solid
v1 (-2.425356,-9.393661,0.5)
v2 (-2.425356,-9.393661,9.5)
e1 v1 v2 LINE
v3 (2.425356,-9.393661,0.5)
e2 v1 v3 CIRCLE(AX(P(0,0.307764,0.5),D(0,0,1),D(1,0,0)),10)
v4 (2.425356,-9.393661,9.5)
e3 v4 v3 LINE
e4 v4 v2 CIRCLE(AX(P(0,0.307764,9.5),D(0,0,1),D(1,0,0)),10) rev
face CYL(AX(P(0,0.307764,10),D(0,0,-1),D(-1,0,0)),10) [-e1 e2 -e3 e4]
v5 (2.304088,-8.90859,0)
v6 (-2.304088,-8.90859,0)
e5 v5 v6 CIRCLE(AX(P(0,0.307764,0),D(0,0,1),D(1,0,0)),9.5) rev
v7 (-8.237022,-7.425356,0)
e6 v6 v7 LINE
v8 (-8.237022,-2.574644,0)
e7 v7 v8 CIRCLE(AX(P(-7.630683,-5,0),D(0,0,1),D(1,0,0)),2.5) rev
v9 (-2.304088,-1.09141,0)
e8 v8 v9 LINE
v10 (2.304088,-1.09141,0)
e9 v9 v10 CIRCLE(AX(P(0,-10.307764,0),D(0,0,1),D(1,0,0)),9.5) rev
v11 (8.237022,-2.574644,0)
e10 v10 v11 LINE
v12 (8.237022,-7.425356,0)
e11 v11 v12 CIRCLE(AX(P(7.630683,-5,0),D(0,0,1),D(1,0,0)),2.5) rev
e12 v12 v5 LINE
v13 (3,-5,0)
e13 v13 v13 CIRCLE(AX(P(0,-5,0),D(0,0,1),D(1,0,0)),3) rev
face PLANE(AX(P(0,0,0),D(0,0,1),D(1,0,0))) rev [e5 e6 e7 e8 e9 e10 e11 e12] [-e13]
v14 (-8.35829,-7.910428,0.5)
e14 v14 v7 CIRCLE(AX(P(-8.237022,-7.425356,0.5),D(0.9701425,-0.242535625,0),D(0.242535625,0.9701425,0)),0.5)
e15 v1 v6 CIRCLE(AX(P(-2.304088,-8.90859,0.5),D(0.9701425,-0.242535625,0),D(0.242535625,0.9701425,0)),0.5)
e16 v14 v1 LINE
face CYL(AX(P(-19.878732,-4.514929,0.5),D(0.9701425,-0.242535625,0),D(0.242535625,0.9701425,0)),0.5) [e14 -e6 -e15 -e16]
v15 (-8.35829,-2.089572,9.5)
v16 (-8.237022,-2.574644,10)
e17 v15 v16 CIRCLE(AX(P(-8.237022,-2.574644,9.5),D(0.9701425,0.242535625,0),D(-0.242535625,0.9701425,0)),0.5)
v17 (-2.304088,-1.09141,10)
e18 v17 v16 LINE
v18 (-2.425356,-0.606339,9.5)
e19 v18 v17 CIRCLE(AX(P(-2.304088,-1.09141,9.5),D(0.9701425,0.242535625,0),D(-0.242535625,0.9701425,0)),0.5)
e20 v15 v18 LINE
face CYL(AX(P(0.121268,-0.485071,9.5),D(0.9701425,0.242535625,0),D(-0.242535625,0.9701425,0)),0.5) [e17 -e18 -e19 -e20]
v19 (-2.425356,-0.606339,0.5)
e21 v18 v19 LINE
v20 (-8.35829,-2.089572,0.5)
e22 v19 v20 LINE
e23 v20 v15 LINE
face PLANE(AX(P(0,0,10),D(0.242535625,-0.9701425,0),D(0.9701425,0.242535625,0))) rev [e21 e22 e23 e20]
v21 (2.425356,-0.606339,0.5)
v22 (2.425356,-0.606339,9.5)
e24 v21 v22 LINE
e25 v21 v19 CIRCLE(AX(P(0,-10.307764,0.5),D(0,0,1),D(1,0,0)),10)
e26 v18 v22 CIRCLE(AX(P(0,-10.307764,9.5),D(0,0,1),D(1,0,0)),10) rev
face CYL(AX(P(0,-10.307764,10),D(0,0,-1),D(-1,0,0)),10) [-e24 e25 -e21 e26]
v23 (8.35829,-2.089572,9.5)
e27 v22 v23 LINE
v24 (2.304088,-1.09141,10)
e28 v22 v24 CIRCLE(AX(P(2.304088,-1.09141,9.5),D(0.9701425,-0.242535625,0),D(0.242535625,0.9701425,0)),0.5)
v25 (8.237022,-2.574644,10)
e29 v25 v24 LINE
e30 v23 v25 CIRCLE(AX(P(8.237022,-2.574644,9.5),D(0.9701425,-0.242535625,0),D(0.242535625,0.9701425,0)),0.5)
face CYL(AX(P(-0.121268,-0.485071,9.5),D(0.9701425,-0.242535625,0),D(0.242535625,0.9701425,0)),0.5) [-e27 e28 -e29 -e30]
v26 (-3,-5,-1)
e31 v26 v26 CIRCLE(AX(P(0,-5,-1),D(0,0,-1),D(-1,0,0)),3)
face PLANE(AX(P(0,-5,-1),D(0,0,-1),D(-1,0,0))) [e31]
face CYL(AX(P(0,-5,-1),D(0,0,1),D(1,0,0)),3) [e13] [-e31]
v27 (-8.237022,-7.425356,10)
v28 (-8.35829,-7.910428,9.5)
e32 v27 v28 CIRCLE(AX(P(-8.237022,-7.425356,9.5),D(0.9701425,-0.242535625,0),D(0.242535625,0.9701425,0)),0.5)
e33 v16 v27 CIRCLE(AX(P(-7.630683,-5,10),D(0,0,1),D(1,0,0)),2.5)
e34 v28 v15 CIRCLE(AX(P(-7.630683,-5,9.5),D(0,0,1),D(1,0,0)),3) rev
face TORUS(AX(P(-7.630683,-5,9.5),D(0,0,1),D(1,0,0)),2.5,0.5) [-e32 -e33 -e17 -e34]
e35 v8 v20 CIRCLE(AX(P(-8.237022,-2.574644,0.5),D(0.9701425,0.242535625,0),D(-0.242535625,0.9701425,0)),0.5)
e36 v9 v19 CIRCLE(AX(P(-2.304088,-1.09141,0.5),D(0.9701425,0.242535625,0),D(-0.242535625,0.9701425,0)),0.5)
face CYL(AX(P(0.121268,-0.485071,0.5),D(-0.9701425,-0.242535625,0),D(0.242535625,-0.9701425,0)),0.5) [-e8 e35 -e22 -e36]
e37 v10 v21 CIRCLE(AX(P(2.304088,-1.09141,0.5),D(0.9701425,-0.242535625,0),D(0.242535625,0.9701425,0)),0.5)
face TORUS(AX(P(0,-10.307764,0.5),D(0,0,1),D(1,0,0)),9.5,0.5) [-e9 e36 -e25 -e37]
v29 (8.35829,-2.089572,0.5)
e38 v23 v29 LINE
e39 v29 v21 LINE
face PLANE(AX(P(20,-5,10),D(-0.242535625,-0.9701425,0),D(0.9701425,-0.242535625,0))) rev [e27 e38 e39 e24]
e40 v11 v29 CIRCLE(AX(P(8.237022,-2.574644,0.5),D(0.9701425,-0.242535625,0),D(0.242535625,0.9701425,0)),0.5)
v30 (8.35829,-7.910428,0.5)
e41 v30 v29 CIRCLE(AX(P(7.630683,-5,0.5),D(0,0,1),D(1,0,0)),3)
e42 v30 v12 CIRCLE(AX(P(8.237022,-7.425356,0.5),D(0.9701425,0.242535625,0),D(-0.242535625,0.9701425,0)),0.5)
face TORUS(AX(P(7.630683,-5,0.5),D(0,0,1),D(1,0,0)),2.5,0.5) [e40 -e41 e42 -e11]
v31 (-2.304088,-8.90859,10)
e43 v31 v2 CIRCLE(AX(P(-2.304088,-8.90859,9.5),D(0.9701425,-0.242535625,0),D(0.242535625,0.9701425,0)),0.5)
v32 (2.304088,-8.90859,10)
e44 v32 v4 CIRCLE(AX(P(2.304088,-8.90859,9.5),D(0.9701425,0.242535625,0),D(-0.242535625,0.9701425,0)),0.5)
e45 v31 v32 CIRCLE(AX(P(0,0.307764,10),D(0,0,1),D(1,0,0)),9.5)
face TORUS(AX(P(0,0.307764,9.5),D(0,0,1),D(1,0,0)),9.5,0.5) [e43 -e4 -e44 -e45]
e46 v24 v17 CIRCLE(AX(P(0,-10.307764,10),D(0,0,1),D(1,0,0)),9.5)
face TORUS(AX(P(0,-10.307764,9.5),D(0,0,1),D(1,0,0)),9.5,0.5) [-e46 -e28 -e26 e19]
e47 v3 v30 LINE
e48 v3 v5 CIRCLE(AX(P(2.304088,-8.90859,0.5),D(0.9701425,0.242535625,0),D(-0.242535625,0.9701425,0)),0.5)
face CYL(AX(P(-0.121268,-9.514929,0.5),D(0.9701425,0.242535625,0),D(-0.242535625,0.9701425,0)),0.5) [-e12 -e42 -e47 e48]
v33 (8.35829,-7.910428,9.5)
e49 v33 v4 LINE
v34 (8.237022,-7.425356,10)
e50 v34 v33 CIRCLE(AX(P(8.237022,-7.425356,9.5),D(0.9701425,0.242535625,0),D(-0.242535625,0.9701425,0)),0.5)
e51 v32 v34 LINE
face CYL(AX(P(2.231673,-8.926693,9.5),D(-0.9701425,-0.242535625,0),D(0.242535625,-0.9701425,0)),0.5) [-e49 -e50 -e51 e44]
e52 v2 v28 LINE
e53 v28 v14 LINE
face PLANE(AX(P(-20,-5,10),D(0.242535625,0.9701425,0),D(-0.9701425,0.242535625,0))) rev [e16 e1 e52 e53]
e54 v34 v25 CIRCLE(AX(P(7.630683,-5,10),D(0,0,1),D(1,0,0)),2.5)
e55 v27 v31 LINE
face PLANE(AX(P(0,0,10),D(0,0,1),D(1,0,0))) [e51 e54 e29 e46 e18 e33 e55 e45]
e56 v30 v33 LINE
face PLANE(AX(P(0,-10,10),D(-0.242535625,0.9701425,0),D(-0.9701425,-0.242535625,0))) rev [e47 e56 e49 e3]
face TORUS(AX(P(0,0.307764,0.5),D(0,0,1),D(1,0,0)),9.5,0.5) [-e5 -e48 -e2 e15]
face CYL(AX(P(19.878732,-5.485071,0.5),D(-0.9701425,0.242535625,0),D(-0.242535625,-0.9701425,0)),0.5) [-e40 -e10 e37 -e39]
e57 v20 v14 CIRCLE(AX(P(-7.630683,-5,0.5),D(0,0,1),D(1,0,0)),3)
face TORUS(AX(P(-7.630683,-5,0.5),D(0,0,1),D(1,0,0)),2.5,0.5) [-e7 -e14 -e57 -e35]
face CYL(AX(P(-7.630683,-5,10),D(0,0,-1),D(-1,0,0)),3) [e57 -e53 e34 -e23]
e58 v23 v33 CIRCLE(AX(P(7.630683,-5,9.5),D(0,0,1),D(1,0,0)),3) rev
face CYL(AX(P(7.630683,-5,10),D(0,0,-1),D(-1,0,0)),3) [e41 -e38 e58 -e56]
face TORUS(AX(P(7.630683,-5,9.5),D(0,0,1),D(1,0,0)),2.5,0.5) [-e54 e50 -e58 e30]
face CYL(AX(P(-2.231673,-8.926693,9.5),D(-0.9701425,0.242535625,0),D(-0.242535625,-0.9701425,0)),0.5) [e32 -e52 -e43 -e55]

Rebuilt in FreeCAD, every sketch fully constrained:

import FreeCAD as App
import Part
import Sketcher

V = App.Vector


def edges_at(feature, points):
    """Names of the edges that pass closest to the given points."""
    edges = feature.Shape.Edges
    near = lambda p: min(range(len(edges)), key=lambda i: edges[i].distToShape(Part.Vertex(*p))[0])
    return sorted({f"Edge{near(p) + 1}" for p in points})

doc = App.newDocument("Part")
body = doc.addObject("PartDesign::Body", "Body")

# Sketch on XY plane
sketch1 = body.newObject("Sketcher::SketchObject", "Sketch")
sketch1.AttachmentSupport = (doc.getObject("XY_Plane"), [""])
sketch1.MapMode = "FlatFace"
sketch1.addGeometry(Part.LineSegment(V(0, 0, 0), V(-20, -5, 0)), False)
sketch1.addGeometry(Part.LineSegment(V(-20, -5, 0), V(0, -10, 0)), False)
sketch1.addGeometry(Part.LineSegment(V(0, -10, 0), V(20, -5, 0)), False)
sketch1.addGeometry(Part.LineSegment(V(20, -5, 0), V(0, 0, 0)), False)
sketch1.addConstraint(Sketcher.Constraint("Coincident", 0, 2, 1, 1))
sketch1.addConstraint(Sketcher.Constraint("Coincident", 1, 2, 2, 1))
sketch1.addConstraint(Sketcher.Constraint("Coincident", 2, 2, 3, 1))
sketch1.addConstraint(Sketcher.Constraint("Coincident", 3, 2, 0, 1))
sketch1.addConstraint(Sketcher.Constraint("Coincident", 3, 2, -1, 1))
sketch1.addConstraint(Sketcher.Constraint("Symmetric", 0, 2, 2, 2, -2))
sketch1.addConstraint(Sketcher.Constraint("PointOnObject", 1, 2, -2))
sketch1.addConstraint(Sketcher.Constraint("Parallel", 0, 2))
sketch1.addConstraint(Sketcher.Constraint("DistanceX", 0, 2, -1, 1, 20.0))
sketch1.addConstraint(Sketcher.Constraint("DistanceY", 0, 2, -1, 1, 5.0))
pad1 = body.newObject("PartDesign::Pad", "Pad")
pad1.Profile = sketch1
pad1.Length = 10
doc.recompute()

fillet = body.newObject("PartDesign::Fillet", "Fillet")
fillet.Base = (pad1, edges_at(pad1, [(0, -10, 5), (0, 0, 5)]))
fillet.Radius = 10
doc.recompute()

fillet2 = body.newObject("PartDesign::Fillet", "Fillet001")
fillet2.Base = (fillet, edges_at(fillet, [(20, -5, 5), (-20, -5, 5)]))
fillet2.Radius = 3

# Sketch on XY plane
sketch2 = body.newObject("Sketcher::SketchObject", "Sketch001")
sketch2.AttachmentSupport = (doc.getObject("XY_Plane"), [""])
sketch2.MapMode = "FlatFace"
sketch2.addGeometry(Part.Circle(V(0, -5, 0), V(0, 0, 1), 3), False)
sketch2.addConstraint(Sketcher.Constraint("PointOnObject", 0, 3, -2))
sketch2.addConstraint(Sketcher.Constraint("Diameter", 0, 6.0))
sketch2.addConstraint(Sketcher.Constraint("DistanceY", 0, 3, -1, 1, 5.0))
pad2 = body.newObject("PartDesign::Pad", "Pad001")
pad2.Profile = sketch2
pad2.Length = 1
pad2.Reversed = True
doc.recompute()

fillet3 = body.newObject("PartDesign::Fillet", "Fillet002")
fillet3.Base = (pad2, edges_at(pad2, [
    (5.392, -8.652, 0),
    (5.392, -8.652, 10),
    (-5.392, -1.348, 0),
    (0, -0.308, 0),
    (0, -9.692, 0),
    (-5.392, -1.348, 10),
    (0, -0.308, 10),
    (0, -9.692, 10),
    (5.392, -1.348, 0),
    (5.392, -1.348, 10),
    (-5.392, -8.652, 0),
    (-10.631, -5, 0),
    (10.631, -5, 0),
    (-5.392, -8.652, 10),
    (-10.631, -5, 10),
    (10.631, -5, 10),
]))
fillet3.Radius = 0.5

doc.recompute()
